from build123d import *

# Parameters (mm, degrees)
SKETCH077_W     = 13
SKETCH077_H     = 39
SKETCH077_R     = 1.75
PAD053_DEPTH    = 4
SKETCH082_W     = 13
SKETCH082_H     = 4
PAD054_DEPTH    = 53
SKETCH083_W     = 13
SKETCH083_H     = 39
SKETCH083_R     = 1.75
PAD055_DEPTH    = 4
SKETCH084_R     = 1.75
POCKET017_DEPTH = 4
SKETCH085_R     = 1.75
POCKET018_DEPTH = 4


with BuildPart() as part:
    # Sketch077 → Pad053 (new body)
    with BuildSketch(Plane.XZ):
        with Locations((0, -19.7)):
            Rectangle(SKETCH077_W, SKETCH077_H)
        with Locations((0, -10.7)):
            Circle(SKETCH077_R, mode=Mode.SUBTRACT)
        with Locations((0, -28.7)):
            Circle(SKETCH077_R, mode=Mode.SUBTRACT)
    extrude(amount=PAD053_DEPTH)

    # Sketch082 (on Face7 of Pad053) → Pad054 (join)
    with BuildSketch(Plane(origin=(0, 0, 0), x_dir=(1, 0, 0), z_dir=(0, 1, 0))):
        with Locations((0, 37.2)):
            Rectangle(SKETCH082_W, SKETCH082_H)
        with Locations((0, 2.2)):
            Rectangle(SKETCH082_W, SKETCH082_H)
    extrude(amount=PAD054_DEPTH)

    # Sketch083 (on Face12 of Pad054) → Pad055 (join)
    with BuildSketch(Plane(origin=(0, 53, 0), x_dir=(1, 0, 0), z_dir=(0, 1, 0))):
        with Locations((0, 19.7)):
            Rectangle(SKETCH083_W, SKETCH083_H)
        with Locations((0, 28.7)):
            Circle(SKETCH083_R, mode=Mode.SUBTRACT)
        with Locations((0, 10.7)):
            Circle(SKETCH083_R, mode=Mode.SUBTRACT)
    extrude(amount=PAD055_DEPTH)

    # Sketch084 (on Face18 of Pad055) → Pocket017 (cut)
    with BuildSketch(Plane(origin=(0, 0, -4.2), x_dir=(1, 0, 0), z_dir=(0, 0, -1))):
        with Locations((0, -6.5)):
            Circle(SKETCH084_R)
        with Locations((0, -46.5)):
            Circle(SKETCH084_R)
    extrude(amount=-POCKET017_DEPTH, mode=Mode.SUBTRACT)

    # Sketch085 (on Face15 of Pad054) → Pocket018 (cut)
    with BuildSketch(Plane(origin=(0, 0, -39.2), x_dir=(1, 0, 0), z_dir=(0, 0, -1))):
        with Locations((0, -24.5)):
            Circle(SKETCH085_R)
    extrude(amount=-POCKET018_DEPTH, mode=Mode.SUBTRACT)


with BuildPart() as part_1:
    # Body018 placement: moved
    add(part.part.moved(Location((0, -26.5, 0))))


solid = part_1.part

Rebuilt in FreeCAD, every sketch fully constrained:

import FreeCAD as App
import Part
import Sketcher

V = App.Vector
Q = App.Units.Quantity


def add_polygon(sketch, points):
    """Adds a closed chain of lines whose ends are joined by coincident constraints."""
    first, n = sketch.GeometryCount, len(points)
    for a, b in zip(points, points[1:] + points[:1]):
        sketch.addGeometry(Part.LineSegment(App.Vector(*a, 0), App.Vector(*b, 0)), False)
    for i in range(n):
        sketch.addConstraint(Sketcher.Constraint("Coincident", first + i, 2, first + (i + 1) % n, 1))

doc = App.newDocument("Part")
body = doc.addObject("PartDesign::Body", "Body")

sketch1 = body.newObject("Sketcher::SketchObject", "Sketch")
sketch1.AttachmentSupport = (doc.getObject("XZ_Plane"), [""])
sketch1.MapMode = "FlatFace"
add_polygon(sketch1, [(-6.5, -0.2), (-6.5, -39.2), (6.5, -39.2), (6.5, -0.2)])
sketch1.addGeometry(Part.Circle(V(0, -28.7, 0), V(0, 0, 1), 1.8), False)
sketch1.addGeometry(Part.Circle(V(0, -10.7, 0), V(0, 0, 1), 1.8), False)
sketch1.addConstraint(Sketcher.Constraint("Vertical", 0))
sketch1.addConstraint(Sketcher.Constraint("Horizontal", 1))
sketch1.addConstraint(Sketcher.Constraint("Vertical", 2))
sketch1.addConstraint(Sketcher.Constraint("Horizontal", 3))
sketch1.addConstraint(Sketcher.Constraint("Equal", 4, 5))
sketch1.addConstraint(Sketcher.Constraint("PointOnObject", 4, 3, -2))
sketch1.addConstraint(Sketcher.Constraint("PointOnObject", 5, 3, -2))
sketch1.addConstraint(Sketcher.Constraint("Diameter", 4, Q("3.5 mm")))
sketch1.addConstraint(Sketcher.Constraint("DistanceX", 1, 1, 1, 2, Q("13 mm")))
sketch1.addConstraint(Sketcher.Constraint("DistanceY", 0, 2, 0, 1, Q("39 mm")))
sketch1.addConstraint(Sketcher.Constraint("DistanceY", 4, 3, 5, 3, Q("18 mm")))
sketch1.addConstraint(Sketcher.Constraint("DistanceY", 4, 3, -1, 1, Q("28.7 mm")))
sketch1.addConstraint(Sketcher.Constraint("DistanceX", 0, 2, -1, 1, Q("6.5 mm")))
sketch1.addConstraint(Sketcher.Constraint("DistanceY", 0, 2, -1, 1, Q("39.2 mm")))
pad1 = body.newObject("PartDesign::Pad", "Pad")
pad1.Profile = sketch1
pad1.Length = 4

sketch2 = body.newObject("Sketcher::SketchObject", "Sketch001")
sketch2.AttachmentSupport = (doc.getObject("XZ_Plane"), [""])
sketch2.MapMode = "FlatFace"
add_polygon(sketch2, [(-6.5, -39.2), (-6.5, -35.2), (6.5, -35.2), (6.5, -39.2)])
add_polygon(sketch2, [(-6.5, -4.2), (-6.5, -0.2), (6.5, -0.2), (6.5, -4.2)])
sketch2.addConstraint(Sketcher.Constraint("Vertical", 0))
sketch2.addConstraint(Sketcher.Constraint("Horizontal", 1))
sketch2.addConstraint(Sketcher.Constraint("Vertical", 2))
sketch2.addConstraint(Sketcher.Constraint("Horizontal", 3))
sketch2.addConstraint(Sketcher.Constraint("Vertical", 4))
sketch2.addConstraint(Sketcher.Constraint("Horizontal", 5))
sketch2.addConstraint(Sketcher.Constraint("Vertical", 6))
sketch2.addConstraint(Sketcher.Constraint("Horizontal", 7))
sketch2.addConstraint(Sketcher.Constraint("Vertical", 3, 2, 4, 2))
sketch2.addConstraint(Sketcher.Constraint("Vertical", 2, 2, 5, 2))
sketch2.addConstraint(Sketcher.Constraint("Equal", 2, 4))
sketch2.addConstraint(Sketcher.Constraint("DistanceX", 1, 1, 1, 2, Q("13 mm")))
sketch2.addConstraint(Sketcher.Constraint("DistanceY", 0, 1, 0, 2, Q("4 mm")))
sketch2.addConstraint(Sketcher.Constraint("DistanceY", 0, 2, 4, 2, Q("35 mm")))
sketch2.addConstraint(Sketcher.Constraint("DistanceX", 0, 2, -1, 1, Q("6.5 mm")))
sketch2.addConstraint(Sketcher.Constraint("DistanceY", 0, 2, -1, 1, Q("35.2 mm")))
pad2 = body.newObject("PartDesign::Pad", "Pad001")
pad2.Profile = sketch2
pad2.Length = 53
pad2.Reversed = True

sketch3 = body.newObject("Sketcher::SketchObject", "Sketch002")
sketch3.AttachmentSupport = (doc.getObject("XZ_Plane"), [""])
sketch3.MapMode = "FlatFace"
sketch3.AttachmentOffset = App.Placement(V(0, 0, -53), App.Rotation())
add_polygon(sketch3, [(-6.5, -39.2), (-6.5, -0.2), (6.5, -0.2), (6.5, -39.2)])
sketch3.addGeometry(Part.Circle(V(0, -10.7, 0), V(0, 0, 1), 1.8), False)
sketch3.addGeometry(Part.Circle(V(0, -28.7, 0), V(0, 0, 1), 1.8), False)
sketch3.addConstraint(Sketcher.Constraint("Vertical", 0))
sketch3.addConstraint(Sketcher.Constraint("Horizontal", 1))
sketch3.addConstraint(Sketcher.Constraint("Vertical", 2))
sketch3.addConstraint(Sketcher.Constraint("Horizontal", 3))
sketch3.addConstraint(Sketcher.Constraint("Equal", 4, 5))
sketch3.addConstraint(Sketcher.Constraint("PointOnObject", 4, 3, -2))
sketch3.addConstraint(Sketcher.Constraint("PointOnObject", 5, 3, -2))
sketch3.addConstraint(Sketcher.Constraint("Diameter", 4, Q("3.5 mm")))
sketch3.addConstraint(Sketcher.Constraint("DistanceX", 1, 1, 1, 2, Q("13 mm")))
sketch3.addConstraint(Sketcher.Constraint("DistanceY", 0, 1, 0, 2, Q("39 mm")))
sketch3.addConstraint(Sketcher.Constraint("DistanceY", 5, 3, 4, 3, Q("18 mm")))
sketch3.addConstraint(Sketcher.Constraint("DistanceY", 4, 3, -1, 1, Q("10.7 mm")))
sketch3.addConstraint(Sketcher.Constraint("DistanceX", 0, 2, -1, 1, Q("6.5 mm")))
sketch3.addConstraint(Sketcher.Constraint("DistanceY", 0, 2, -1, 1, Q("0.2 mm")))
pad3 = body.newObject("PartDesign::Pad", "Pad002")
pad3.Profile = sketch3
pad3.Length = 4
pad3.Reversed = True

sketch4 = body.newObject("Sketcher::SketchObject", "Sketch003")
sketch4.AttachmentSupport = (doc.getObject("XY_Plane"), [""])
sketch4.MapMode = "FlatFace"
sketch4.AttachmentOffset = App.Placement(V(0, 0, -4.2), App.Rotation())
sketch4.addGeometry(Part.Circle(V(0, 6.5, 0), V(0, 0, 1), 1.8), False)
sketch4.addGeometry(Part.Circle(V(0, 46.5, 0), V(0, 0, 1), 1.8), False)
sketch4.addConstraint(Sketcher.Constraint("Equal", 0, 1))
sketch4.addConstraint(Sketcher.Constraint("PointOnObject", 0, 3, -2))
sketch4.addConstraint(Sketcher.Constraint("PointOnObject", 1, 3, -2))
sketch4.addConstraint(Sketcher.Constraint("Diameter", 0, Q("3.5 mm")))
sketch4.addConstraint(Sketcher.Constraint("DistanceY", 0, 3, 1, 3, Q("40 mm")))
sketch4.addConstraint(Sketcher.Constraint("DistanceY", -1, 1, 0, 3, Q("6.5 mm")))
pocket1 = body.newObject("PartDesign::Pocket", "Pocket")
pocket1.Profile = sketch4
pocket1.Length = 4
pocket1.Reversed = True

sketch5 = body.newObject("Sketcher::SketchObject", "Sketch004")
sketch5.AttachmentSupport = (doc.getObject("XY_Plane"), [""])
sketch5.MapMode = "FlatFace"
sketch5.AttachmentOffset = App.Placement(V(0, 0, -39.2), App.Rotation())
sketch5.addGeometry(Part.Circle(V(0, 24.5, 0), V(0, 0, 1), 1.8), False)
sketch5.addConstraint(Sketcher.Constraint("PointOnObject", 0, 3, -2))
sketch5.addConstraint(Sketcher.Constraint("Diameter", 0, Q("3.5 mm")))
sketch5.addConstraint(Sketcher.Constraint("DistanceY", -1, 1, 0, 3, Q("24.5 mm")))
pocket2 = body.newObject("PartDesign::Pocket", "Pocket001")
pocket2.Profile = sketch5
pocket2.Length = 4
pocket2.Reversed = True
body2 = doc.addObject("PartDesign::Body", "Body001")
doc.recompute()

body.Placement = App.Placement(V(0, -26.5, 0), App.Rotation(V(0, 0, 1), 0))
boolean = body2.newObject("PartDesign::Boolean", "Boolean")
boolean.Type = "Fuse"
boolean.addObjects([body])

doc.recompute()
